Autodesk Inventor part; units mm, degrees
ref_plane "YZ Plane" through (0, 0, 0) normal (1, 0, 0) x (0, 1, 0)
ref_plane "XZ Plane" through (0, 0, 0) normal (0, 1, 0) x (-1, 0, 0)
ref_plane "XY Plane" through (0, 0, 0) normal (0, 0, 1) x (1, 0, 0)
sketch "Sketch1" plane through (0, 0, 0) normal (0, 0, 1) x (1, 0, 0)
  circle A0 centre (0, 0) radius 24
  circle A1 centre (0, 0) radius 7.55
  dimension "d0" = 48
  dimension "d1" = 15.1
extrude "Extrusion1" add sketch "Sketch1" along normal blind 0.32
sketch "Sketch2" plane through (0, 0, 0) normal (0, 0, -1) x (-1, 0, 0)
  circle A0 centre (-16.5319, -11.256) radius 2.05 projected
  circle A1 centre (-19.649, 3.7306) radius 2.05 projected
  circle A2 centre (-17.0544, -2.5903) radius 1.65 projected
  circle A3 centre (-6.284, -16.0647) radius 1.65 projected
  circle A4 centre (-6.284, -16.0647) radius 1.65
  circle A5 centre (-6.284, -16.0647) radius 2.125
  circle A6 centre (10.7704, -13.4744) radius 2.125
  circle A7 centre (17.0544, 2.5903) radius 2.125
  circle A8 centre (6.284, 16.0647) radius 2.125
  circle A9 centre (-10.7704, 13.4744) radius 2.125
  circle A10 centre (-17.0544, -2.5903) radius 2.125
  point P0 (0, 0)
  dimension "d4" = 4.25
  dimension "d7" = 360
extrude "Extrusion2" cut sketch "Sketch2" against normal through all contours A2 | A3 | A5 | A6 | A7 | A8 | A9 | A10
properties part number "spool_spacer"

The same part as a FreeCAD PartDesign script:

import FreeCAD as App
import Part
import Sketcher
Q = App.Units.Quantity

doc = App.newDocument("Part")
body = doc.addObject("PartDesign::Body", "Body")

sketch1 = body.newObject("Sketcher::SketchObject", "Sketch")
sketch1.AttachmentSupport = (doc.getObject("XY_Plane"), [""])
sketch1.MapMode = "FlatFace"
sketch1.addGeometry(Part.Circle(App.Vector(0, 0, 0), App.Vector(0, 0, 1), 24), False)
sketch1.addGeometry(Part.Circle(App.Vector(0, 0, 0), App.Vector(0, 0, 1), 8), False)
sketch1.addConstraint(Sketcher.Constraint("Coincident", 0, 3, -1, 1))
sketch1.addConstraint(Sketcher.Constraint("Coincident", 1, 3, -1, 1))
sketch1.addConstraint(Sketcher.Constraint("Diameter", 0, Q("48 mm")))
sketch1.addConstraint(Sketcher.Constraint("Diameter", 1, Q("15.1 mm")))
pad1 = body.newObject("PartDesign::Pad", "Pad")
pad1.Profile = sketch1
pad1.Length = 0.32

sketch2 = body.newObject("Sketcher::SketchObject", "Sketch001")
sketch2.AttachmentSupport = (doc.getObject("XY_Plane"), [""])
sketch2.MapMode = "FlatFace"
sketch2.addGeometry(Part.Circle(App.Vector(17.1, -2.6, 0), App.Vector(0, 0, 1), 2.1), False)
sketch2.addGeometry(Part.Circle(App.Vector(6.3, -16.1, 0), App.Vector(0, 0, 1), 2.1), False)
sketch2.addGeometry(Part.Circle(App.Vector(-10.8, -13.5, 0), App.Vector(0, 0, 1), 2.1), False)
sketch2.addGeometry(Part.Circle(App.Vector(-17.1, 2.6, 0), App.Vector(0, 0, 1), 2.1), False)
sketch2.addGeometry(Part.Circle(App.Vector(-6.3, 16.1, 0), App.Vector(0, 0, 1), 2.1), False)
sketch2.addGeometry(Part.Circle(App.Vector(10.8, 13.5, 0), App.Vector(0, 0, 1), 2.1), False)
sketch2.addConstraint(Sketcher.Constraint("Equal", 0, 1))
sketch2.addConstraint(Sketcher.Constraint("Equal", 1, 2))
sketch2.addConstraint(Sketcher.Constraint("Equal", 2, 3))
sketch2.addConstraint(Sketcher.Constraint("Equal", 3, 4))
sketch2.addConstraint(Sketcher.Constraint("Equal", 4, 5))
sketch2.addConstraint(Sketcher.Constraint("Symmetric", 0, 3, 3, 3, -1, 1))
sketch2.addConstraint(Sketcher.Constraint("Symmetric", 1, 3, 4, 3, -1, 1))
sketch2.addConstraint(Sketcher.Constraint("Symmetric", 2, 3, 5, 3, -1, 1))
sketch2.addConstraint(Sketcher.Constraint("Diameter", 0, Q("4.25 mm")))
sketch2.addConstraint(Sketcher.Constraint("DistanceX", -1, 1, 1, 3, Q("6.284 mm")))
sketch2.addConstraint(Sketcher.Constraint("DistanceY", 2, 3, 0, 3, Q("10.884 mm")))
sketch2.addConstraint(Sketcher.Constraint("DistanceX", 3, 3, 2, 3, Q("6.284 mm")))
sketch2.addConstraint(Sketcher.Constraint("DistanceY", 1, 3, 3, 3, Q("18.655 mm")))
sketch2.addConstraint(Sketcher.Constraint("DistanceX", -1, 1, 0, 3, Q("17.0544 mm")))
sketch2.addConstraint(Sketcher.Constraint("DistanceY", 0, 3, -1, 1, Q("2.5903 mm")))
pocket1 = body.newObject("PartDesign::Pocket", "Pocket")
pocket1.Profile = sketch2
pocket1.Type = "ThroughAll"
pocket1.Reversed = True

doc.recompute()
